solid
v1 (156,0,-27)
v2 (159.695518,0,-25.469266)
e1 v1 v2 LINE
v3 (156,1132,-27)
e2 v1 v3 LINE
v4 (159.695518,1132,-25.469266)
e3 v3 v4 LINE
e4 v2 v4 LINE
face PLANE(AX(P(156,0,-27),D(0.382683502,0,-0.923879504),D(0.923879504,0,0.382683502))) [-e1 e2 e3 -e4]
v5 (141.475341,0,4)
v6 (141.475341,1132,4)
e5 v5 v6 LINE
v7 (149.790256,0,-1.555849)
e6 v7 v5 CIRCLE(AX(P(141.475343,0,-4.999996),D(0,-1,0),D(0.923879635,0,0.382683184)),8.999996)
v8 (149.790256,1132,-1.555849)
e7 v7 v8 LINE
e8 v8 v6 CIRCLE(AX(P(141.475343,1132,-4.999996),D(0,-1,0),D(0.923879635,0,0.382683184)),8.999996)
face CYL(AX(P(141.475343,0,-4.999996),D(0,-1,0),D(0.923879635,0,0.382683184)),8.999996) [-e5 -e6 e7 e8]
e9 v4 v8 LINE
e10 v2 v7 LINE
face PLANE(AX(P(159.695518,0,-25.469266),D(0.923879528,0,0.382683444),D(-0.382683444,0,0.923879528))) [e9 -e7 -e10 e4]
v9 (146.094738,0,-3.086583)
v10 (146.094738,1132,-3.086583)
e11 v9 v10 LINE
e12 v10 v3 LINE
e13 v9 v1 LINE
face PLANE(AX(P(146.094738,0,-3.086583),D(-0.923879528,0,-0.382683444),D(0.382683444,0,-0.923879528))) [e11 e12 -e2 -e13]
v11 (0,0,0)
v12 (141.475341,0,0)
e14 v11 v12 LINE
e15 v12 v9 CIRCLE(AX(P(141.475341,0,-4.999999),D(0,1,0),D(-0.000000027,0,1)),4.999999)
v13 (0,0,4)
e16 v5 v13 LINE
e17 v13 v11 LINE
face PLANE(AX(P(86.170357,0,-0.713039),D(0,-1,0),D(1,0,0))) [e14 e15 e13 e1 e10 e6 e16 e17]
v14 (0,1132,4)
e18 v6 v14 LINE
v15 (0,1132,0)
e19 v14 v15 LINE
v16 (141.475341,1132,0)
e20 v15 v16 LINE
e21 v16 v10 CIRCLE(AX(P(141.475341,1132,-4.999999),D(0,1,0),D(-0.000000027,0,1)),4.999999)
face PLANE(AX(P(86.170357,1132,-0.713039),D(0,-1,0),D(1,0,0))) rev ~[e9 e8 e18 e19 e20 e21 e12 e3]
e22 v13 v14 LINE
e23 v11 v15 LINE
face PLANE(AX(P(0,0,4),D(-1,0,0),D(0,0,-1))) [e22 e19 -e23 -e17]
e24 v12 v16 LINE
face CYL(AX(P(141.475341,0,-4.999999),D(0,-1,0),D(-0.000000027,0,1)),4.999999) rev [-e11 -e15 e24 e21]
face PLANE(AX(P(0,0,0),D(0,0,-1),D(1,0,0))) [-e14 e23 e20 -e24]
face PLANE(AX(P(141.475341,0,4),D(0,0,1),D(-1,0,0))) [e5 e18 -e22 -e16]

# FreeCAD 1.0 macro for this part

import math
import FreeCAD as App
import Part
import Sketcher

V = App.Vector
Q = App.Units.Quantity

doc = App.newDocument("Part")
body = doc.addObject("PartDesign::Body", "Body")

# Sketch on XZ plane
sketch1 = body.newObject("Sketcher::SketchObject", "Sketch")
sketch1.AttachmentSupport = (doc.getObject("XZ_Plane"), [""])
sketch1.MapMode = "FlatFace"
sketch1.addGeometry(Part.LineSegment(V(141.5, 4, 0), V(0, 4, 0)), False)
sketch1.addGeometry(Part.LineSegment(V(0, 4, 0), V(0, 0, 0)), False)
sketch1.addGeometry(Part.LineSegment(V(0, 0, 0), V(141.5, 0, 0)), False)
sketch1.addGeometry(Part.ArcOfCircle(Part.Circle(V(141.5, -5, 0), V(0, 0, 1), 5), math.radians(22), math.radians(90)), False)
sketch1.addGeometry(Part.LineSegment(V(146.1, -3.1, 0), V(156, -27, 0)), False)
sketch1.addGeometry(Part.LineSegment(V(156, -27, 0), V(159.7, -25.5, 0)), False)
sketch1.addGeometry(Part.LineSegment(V(159.7, -25.5, 0), V(149.8, -1.6, 0)), False)
sketch1.addGeometry(Part.ArcOfCircle(Part.Circle(V(141.5, -5, 0), V(0, 0, 1), 9), math.radians(22), math.radians(90)), False)
sketch1.addConstraint(Sketcher.Constraint("Coincident", 0, 2, 1, 1))
sketch1.addConstraint(Sketcher.Constraint("Coincident", 1, 2, 2, 1))
sketch1.addConstraint(Sketcher.Constraint("Tangent", 2, 2, 3, 2))
sketch1.addConstraint(Sketcher.Constraint("Tangent", 3, 1, 4, 1))
sketch1.addConstraint(Sketcher.Constraint("Coincident", 4, 2, 5, 1))
sketch1.addConstraint(Sketcher.Constraint("Coincident", 5, 2, 6, 1))
sketch1.addConstraint(Sketcher.Constraint("Tangent", 6, 2, 7, 1))
sketch1.addConstraint(Sketcher.Constraint("Tangent", 7, 2, 0, 1))
sketch1.addConstraint(Sketcher.Constraint("Horizontal", 0))
sketch1.addConstraint(Sketcher.Constraint("Vertical", 1))
sketch1.addConstraint(Sketcher.Constraint("Horizontal", 2))
sketch1.addConstraint(Sketcher.Constraint("Coincident", 1, 2, -1, 1))
sketch1.addConstraint(Sketcher.Constraint("Coincident", 7, 3, 3, 3))
sketch1.addConstraint(Sketcher.Constraint("Perpendicular", 4, 5))
sketch1.addConstraint(Sketcher.Constraint("Perpendicular", 5, 6))
sketch1.addConstraint(Sketcher.Constraint("Radius", 3, 4.999999))
sketch1.addConstraint(Sketcher.Constraint("DistanceY", 1, 2, 1, 1, 4.0))
sketch1.addConstraint(Sketcher.Constraint("DistanceX", -1, 1, 4, 2, 156.0))
sketch1.addConstraint(Sketcher.Constraint("DistanceY", 4, 2, -1, 1, 27.0))
sketch1.addConstraint(Sketcher.Constraint("Angle", 4, Q("-67.499999 deg")))
pad1 = body.newObject("PartDesign::Pad", "Pad")
pad1.Profile = sketch1
pad1.Length = 1132
pad1.Reversed = True

doc.recompute()
